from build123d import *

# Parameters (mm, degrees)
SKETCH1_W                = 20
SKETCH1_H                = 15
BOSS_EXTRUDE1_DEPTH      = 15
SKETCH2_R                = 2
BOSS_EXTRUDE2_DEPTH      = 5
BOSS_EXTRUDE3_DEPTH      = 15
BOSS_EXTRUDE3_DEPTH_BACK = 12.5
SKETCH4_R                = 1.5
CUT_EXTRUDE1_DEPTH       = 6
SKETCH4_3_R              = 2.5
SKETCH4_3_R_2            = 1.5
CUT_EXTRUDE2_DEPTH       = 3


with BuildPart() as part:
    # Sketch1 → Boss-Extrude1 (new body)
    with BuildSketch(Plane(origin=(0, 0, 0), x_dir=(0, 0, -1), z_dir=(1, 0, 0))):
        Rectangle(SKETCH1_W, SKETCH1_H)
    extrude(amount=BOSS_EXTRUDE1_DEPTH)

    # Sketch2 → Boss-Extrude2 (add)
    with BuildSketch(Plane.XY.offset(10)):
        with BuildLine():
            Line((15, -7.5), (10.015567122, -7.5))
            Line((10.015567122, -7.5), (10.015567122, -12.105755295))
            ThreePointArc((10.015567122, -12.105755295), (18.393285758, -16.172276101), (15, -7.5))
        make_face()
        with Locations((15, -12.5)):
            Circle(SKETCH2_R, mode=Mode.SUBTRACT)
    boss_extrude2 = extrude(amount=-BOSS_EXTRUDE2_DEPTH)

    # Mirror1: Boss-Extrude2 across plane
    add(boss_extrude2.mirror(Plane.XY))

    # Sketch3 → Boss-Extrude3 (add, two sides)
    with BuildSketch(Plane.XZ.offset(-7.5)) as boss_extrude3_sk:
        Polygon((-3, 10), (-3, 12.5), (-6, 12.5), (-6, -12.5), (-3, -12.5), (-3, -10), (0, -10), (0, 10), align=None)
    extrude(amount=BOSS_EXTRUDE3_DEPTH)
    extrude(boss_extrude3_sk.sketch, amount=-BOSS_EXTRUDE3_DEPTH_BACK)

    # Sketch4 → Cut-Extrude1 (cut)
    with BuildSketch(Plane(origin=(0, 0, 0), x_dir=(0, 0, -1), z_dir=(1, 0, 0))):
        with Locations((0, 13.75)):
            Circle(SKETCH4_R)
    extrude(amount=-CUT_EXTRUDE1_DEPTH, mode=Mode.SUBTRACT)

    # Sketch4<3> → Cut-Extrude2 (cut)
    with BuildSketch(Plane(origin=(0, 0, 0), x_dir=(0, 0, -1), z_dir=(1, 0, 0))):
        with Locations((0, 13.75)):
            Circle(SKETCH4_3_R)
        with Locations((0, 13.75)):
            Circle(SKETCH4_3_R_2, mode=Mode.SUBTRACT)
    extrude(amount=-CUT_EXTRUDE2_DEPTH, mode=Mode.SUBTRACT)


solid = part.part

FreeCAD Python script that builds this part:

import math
import FreeCAD as App
import Part
import Sketcher

V = App.Vector


def add_polygon(sketch, points):
    """Adds a closed chain of lines whose ends are joined by coincident constraints."""
    first, n = sketch.GeometryCount, len(points)
    for a, b in zip(points, points[1:] + points[:1]):
        sketch.addGeometry(Part.LineSegment(App.Vector(*a, 0), App.Vector(*b, 0)), False)
    for i in range(n):
        sketch.addConstraint(Sketcher.Constraint("Coincident", first + i, 2, first + (i + 1) % n, 1))

doc = App.newDocument("Part")
body = doc.addObject("PartDesign::Body", "Body")

# Sketch on YZ plane
sketch1 = body.newObject("Sketcher::SketchObject", "Sketch")
sketch1.AttachmentSupport = (doc.getObject("YZ_Plane"), [""])
sketch1.MapMode = "FlatFace"
add_polygon(sketch1, [(7.5, 10), (-7.5, 10), (-7.5, -10), (7.5, -10)])  # lines 0-3
sketch1.addConstraint(Sketcher.Constraint("Horizontal", 0))
sketch1.addConstraint(Sketcher.Constraint("Vertical", 1))
sketch1.addConstraint(Sketcher.Constraint("Horizontal", 2))
sketch1.addConstraint(Sketcher.Constraint("Vertical", 3))
sketch1.addConstraint(Sketcher.Constraint("Symmetric", 0, 2, 2, 2, -1, 1))
sketch1.addConstraint(Sketcher.Constraint("DistanceX", 0, 2, 0, 1, 15.0))
sketch1.addConstraint(Sketcher.Constraint("DistanceY", 1, 2, 1, 1, 20.0))
pad1 = body.newObject("PartDesign::Pad", "Pad")
pad1.Profile = sketch1
pad1.Length = 15

# Sketch on XY plane
sketch2 = body.newObject("Sketcher::SketchObject", "Sketch001")
sketch2.AttachmentSupport = (doc.getObject("XY_Plane"), [""])
sketch2.MapMode = "FlatFace"
sketch2.AttachmentOffset = App.Placement(V(0, 0, 10), App.Rotation())
sketch2.addGeometry(Part.LineSegment(V(15, -7.5, 0), V(10.015567, -7.5, 0)), False)
sketch2.addGeometry(Part.LineSegment(V(10.015567, -7.5, 0), V(10.015567, -12.105755, 0)), False)
sketch2.addGeometry(Part.ArcOfCircle(Part.Circle(V(15, -12.5, 0), V(0, 0, 1), 5), math.radians(175.477594), math.radians(450)), False)
sketch2.addGeometry(Part.Circle(V(15, -12.5, 0), V(0, 0, 1), 2), False)
sketch2.addConstraint(Sketcher.Constraint("Coincident", 0, 2, 1, 1))
sketch2.addConstraint(Sketcher.Constraint("Coincident", 1, 2, 2, 1))
sketch2.addConstraint(Sketcher.Constraint("Tangent", 2, 2, 0, 1))
sketch2.addConstraint(Sketcher.Constraint("Horizontal", 0))
sketch2.addConstraint(Sketcher.Constraint("Vertical", 1))
sketch2.addConstraint(Sketcher.Constraint("Coincident", 3, 3, 2, 3))
sketch2.addConstraint(Sketcher.Constraint("Diameter", 3, 4.0))
sketch2.addConstraint(Sketcher.Constraint("Radius", 2, 5.0))
sketch2.addConstraint(Sketcher.Constraint("DistanceX", -1, 1, 2, 3, 15.0))
sketch2.addConstraint(Sketcher.Constraint("DistanceY", 2, 3, -1, 1, 12.5))
sketch2.addConstraint(Sketcher.Constraint("DistanceX", 0, 2, 0, 1, 4.984433))
pad2 = body.newObject("PartDesign::Pad", "Pad001")
pad2.Profile = sketch2
pad2.Length = 5
pad2.Reversed = True
doc.recompute()

mirrored = body.newObject("PartDesign::Mirrored", "Mirrored")
mirrored.Originals = [pad2]
mirrored.MirrorPlane = (doc.getObject("XY_Plane"), [""])
body.Tip = mirrored

# Sketch on XZ plane
sketch3 = body.newObject("Sketcher::SketchObject", "Sketch002")
sketch3.AttachmentSupport = (doc.getObject("XZ_Plane"), [""])
sketch3.MapMode = "FlatFace"
sketch3.AttachmentOffset = App.Placement(V(0, 0, -7.5), App.Rotation())
add_polygon(sketch3, [(-3, 10), (-3, 12.5), (-6, 12.5), (-6, -12.5), (-3, -12.5), (-3, -10), (0, -10), (0, 10)])  # lines 0-7
sketch3.addConstraint(Sketcher.Constraint("Vertical", 0))
sketch3.addConstraint(Sketcher.Constraint("Horizontal", 1))
sketch3.addConstraint(Sketcher.Constraint("Vertical", 2))
sketch3.addConstraint(Sketcher.Constraint("Horizontal", 3))
sketch3.addConstraint(Sketcher.Constraint("Vertical", 4))
sketch3.addConstraint(Sketcher.Constraint("Horizontal", 5))
sketch3.addConstraint(Sketcher.Constraint("Vertical", 6))
sketch3.addConstraint(Sketcher.Constraint("Horizontal", 7))
sketch3.addConstraint(Sketcher.Constraint("Symmetric", 5, 2, 6, 2, -1, 1))
sketch3.addConstraint(Sketcher.Constraint("Symmetric", 0, 2, 3, 2, -1))
sketch3.addConstraint(Sketcher.Constraint("Equal", 3, 5))
sketch3.addConstraint(Sketcher.Constraint("DistanceX", 1, 2, 1, 1, 3.0))
sketch3.addConstraint(Sketcher.Constraint("DistanceY", 2, 2, 2, 1, 25.0))
sketch3.addConstraint(Sketcher.Constraint("DistanceY", 6, 1, 6, 2, 20.0))
pad3 = body.newObject("PartDesign::Pad", "Pad002")
pad3.Profile = sketch3
pad3.Type = "TwoLengths"
pad3.Length = 15
pad3.Length2 = 12.5

# Sketch on YZ plane
sketch4 = body.newObject("Sketcher::SketchObject", "Sketch003")
sketch4.AttachmentSupport = (doc.getObject("YZ_Plane"), [""])
sketch4.MapMode = "FlatFace"
sketch4.addGeometry(Part.Circle(V(13.75, 0, 0), V(0, 0, 1), 1.5), False)
sketch4.addConstraint(Sketcher.Constraint("PointOnObject", 0, 3, -1))
sketch4.addConstraint(Sketcher.Constraint("Diameter", 0, 3.0))
sketch4.addConstraint(Sketcher.Constraint("DistanceX", -1, 1, 0, 3, 13.75))
pocket1 = body.newObject("PartDesign::Pocket", "Pocket")
pocket1.Profile = sketch4
pocket1.Length = 6

# Sketch on YZ plane
sketch5 = body.newObject("Sketcher::SketchObject", "Sketch004")
sketch5.AttachmentSupport = (doc.getObject("YZ_Plane"), [""])
sketch5.MapMode = "FlatFace"
sketch5.addGeometry(Part.Circle(V(13.75, 0, 0), V(0, 0, 1), 2.5), False)
sketch5.addGeometry(Part.Circle(V(13.75, 0, 0), V(0, 0, 1), 1.5), False)
sketch5.addConstraint(Sketcher.Constraint("Coincident", 1, 3, 0, 3))
sketch5.addConstraint(Sketcher.Constraint("PointOnObject", 0, 3, -1))
sketch5.addConstraint(Sketcher.Constraint("Diameter", 0, 5.0))
sketch5.addConstraint(Sketcher.Constraint("Diameter", 1, 3.0))
sketch5.addConstraint(Sketcher.Constraint("DistanceX", -1, 1, 0, 3, 13.75))
pocket2 = body.newObject("PartDesign::Pocket", "Pocket001")
pocket2.Profile = sketch5
pocket2.Length = 3

doc.recompute()
